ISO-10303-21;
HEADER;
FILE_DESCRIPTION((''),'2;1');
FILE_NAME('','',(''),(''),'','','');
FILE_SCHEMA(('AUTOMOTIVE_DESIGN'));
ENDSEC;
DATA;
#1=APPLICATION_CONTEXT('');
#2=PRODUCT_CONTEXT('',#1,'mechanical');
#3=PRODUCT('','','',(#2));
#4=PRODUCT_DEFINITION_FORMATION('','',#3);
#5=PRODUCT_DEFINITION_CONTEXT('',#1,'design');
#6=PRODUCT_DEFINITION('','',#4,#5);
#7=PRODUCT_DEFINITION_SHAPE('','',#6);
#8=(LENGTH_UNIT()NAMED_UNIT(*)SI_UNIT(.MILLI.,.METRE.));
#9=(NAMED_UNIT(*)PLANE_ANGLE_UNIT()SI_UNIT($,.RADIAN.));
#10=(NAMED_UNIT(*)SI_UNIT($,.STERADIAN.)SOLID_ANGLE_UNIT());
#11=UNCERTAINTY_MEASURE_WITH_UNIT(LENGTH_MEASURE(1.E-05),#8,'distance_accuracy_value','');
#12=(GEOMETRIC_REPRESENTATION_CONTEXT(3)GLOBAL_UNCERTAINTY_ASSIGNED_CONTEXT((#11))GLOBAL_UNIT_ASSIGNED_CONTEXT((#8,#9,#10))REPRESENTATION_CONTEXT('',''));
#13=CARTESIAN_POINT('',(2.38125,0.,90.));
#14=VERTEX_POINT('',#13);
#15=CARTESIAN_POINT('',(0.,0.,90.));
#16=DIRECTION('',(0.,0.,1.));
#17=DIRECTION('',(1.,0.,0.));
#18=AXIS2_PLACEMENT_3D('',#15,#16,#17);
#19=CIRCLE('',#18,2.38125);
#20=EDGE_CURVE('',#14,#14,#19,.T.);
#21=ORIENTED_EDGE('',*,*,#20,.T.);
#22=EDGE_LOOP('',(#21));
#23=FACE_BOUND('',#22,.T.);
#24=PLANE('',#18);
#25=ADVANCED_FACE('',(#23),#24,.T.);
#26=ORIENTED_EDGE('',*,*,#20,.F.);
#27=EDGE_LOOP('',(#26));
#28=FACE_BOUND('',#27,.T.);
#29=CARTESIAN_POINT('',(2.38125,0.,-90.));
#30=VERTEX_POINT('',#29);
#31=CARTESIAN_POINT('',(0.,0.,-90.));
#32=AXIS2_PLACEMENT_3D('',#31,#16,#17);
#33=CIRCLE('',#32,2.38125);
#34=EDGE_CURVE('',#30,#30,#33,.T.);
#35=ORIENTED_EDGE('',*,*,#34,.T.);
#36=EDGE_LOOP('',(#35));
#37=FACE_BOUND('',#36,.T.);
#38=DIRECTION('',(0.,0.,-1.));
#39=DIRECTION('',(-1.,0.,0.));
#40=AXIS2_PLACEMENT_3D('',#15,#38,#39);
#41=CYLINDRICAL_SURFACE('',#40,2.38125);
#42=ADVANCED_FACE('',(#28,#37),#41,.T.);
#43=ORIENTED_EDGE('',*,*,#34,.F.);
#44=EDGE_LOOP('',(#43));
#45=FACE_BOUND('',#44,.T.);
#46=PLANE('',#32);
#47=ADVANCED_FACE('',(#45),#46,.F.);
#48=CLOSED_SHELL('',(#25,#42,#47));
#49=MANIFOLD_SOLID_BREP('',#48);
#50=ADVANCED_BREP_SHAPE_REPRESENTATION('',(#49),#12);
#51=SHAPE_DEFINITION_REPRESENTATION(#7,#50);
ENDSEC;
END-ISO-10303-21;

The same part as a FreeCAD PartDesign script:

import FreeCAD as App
import Part
import Sketcher

doc = App.newDocument("Part")
body = doc.addObject("PartDesign::Body", "Body")

sketch1 = body.newObject("Sketcher::SketchObject", "Sketch")
sketch1.AttachmentSupport = (doc.getObject("XY_Plane"), [""])
sketch1.MapMode = "FlatFace"
sketch1.addGeometry(Part.Circle(App.Vector(0, 0, 0), App.Vector(0, 0, 1), 2.4), False)
sketch1.addConstraint(Sketcher.Constraint("Coincident", 0, 3, -1, 1))
sketch1.addConstraint(Sketcher.Constraint("Diameter", 0, 4.7625))
pad1 = body.newObject("PartDesign::Pad", "Pad")
pad1.Profile = sketch1
pad1.Length = 180
pad1.Midplane = True

doc.recompute()
